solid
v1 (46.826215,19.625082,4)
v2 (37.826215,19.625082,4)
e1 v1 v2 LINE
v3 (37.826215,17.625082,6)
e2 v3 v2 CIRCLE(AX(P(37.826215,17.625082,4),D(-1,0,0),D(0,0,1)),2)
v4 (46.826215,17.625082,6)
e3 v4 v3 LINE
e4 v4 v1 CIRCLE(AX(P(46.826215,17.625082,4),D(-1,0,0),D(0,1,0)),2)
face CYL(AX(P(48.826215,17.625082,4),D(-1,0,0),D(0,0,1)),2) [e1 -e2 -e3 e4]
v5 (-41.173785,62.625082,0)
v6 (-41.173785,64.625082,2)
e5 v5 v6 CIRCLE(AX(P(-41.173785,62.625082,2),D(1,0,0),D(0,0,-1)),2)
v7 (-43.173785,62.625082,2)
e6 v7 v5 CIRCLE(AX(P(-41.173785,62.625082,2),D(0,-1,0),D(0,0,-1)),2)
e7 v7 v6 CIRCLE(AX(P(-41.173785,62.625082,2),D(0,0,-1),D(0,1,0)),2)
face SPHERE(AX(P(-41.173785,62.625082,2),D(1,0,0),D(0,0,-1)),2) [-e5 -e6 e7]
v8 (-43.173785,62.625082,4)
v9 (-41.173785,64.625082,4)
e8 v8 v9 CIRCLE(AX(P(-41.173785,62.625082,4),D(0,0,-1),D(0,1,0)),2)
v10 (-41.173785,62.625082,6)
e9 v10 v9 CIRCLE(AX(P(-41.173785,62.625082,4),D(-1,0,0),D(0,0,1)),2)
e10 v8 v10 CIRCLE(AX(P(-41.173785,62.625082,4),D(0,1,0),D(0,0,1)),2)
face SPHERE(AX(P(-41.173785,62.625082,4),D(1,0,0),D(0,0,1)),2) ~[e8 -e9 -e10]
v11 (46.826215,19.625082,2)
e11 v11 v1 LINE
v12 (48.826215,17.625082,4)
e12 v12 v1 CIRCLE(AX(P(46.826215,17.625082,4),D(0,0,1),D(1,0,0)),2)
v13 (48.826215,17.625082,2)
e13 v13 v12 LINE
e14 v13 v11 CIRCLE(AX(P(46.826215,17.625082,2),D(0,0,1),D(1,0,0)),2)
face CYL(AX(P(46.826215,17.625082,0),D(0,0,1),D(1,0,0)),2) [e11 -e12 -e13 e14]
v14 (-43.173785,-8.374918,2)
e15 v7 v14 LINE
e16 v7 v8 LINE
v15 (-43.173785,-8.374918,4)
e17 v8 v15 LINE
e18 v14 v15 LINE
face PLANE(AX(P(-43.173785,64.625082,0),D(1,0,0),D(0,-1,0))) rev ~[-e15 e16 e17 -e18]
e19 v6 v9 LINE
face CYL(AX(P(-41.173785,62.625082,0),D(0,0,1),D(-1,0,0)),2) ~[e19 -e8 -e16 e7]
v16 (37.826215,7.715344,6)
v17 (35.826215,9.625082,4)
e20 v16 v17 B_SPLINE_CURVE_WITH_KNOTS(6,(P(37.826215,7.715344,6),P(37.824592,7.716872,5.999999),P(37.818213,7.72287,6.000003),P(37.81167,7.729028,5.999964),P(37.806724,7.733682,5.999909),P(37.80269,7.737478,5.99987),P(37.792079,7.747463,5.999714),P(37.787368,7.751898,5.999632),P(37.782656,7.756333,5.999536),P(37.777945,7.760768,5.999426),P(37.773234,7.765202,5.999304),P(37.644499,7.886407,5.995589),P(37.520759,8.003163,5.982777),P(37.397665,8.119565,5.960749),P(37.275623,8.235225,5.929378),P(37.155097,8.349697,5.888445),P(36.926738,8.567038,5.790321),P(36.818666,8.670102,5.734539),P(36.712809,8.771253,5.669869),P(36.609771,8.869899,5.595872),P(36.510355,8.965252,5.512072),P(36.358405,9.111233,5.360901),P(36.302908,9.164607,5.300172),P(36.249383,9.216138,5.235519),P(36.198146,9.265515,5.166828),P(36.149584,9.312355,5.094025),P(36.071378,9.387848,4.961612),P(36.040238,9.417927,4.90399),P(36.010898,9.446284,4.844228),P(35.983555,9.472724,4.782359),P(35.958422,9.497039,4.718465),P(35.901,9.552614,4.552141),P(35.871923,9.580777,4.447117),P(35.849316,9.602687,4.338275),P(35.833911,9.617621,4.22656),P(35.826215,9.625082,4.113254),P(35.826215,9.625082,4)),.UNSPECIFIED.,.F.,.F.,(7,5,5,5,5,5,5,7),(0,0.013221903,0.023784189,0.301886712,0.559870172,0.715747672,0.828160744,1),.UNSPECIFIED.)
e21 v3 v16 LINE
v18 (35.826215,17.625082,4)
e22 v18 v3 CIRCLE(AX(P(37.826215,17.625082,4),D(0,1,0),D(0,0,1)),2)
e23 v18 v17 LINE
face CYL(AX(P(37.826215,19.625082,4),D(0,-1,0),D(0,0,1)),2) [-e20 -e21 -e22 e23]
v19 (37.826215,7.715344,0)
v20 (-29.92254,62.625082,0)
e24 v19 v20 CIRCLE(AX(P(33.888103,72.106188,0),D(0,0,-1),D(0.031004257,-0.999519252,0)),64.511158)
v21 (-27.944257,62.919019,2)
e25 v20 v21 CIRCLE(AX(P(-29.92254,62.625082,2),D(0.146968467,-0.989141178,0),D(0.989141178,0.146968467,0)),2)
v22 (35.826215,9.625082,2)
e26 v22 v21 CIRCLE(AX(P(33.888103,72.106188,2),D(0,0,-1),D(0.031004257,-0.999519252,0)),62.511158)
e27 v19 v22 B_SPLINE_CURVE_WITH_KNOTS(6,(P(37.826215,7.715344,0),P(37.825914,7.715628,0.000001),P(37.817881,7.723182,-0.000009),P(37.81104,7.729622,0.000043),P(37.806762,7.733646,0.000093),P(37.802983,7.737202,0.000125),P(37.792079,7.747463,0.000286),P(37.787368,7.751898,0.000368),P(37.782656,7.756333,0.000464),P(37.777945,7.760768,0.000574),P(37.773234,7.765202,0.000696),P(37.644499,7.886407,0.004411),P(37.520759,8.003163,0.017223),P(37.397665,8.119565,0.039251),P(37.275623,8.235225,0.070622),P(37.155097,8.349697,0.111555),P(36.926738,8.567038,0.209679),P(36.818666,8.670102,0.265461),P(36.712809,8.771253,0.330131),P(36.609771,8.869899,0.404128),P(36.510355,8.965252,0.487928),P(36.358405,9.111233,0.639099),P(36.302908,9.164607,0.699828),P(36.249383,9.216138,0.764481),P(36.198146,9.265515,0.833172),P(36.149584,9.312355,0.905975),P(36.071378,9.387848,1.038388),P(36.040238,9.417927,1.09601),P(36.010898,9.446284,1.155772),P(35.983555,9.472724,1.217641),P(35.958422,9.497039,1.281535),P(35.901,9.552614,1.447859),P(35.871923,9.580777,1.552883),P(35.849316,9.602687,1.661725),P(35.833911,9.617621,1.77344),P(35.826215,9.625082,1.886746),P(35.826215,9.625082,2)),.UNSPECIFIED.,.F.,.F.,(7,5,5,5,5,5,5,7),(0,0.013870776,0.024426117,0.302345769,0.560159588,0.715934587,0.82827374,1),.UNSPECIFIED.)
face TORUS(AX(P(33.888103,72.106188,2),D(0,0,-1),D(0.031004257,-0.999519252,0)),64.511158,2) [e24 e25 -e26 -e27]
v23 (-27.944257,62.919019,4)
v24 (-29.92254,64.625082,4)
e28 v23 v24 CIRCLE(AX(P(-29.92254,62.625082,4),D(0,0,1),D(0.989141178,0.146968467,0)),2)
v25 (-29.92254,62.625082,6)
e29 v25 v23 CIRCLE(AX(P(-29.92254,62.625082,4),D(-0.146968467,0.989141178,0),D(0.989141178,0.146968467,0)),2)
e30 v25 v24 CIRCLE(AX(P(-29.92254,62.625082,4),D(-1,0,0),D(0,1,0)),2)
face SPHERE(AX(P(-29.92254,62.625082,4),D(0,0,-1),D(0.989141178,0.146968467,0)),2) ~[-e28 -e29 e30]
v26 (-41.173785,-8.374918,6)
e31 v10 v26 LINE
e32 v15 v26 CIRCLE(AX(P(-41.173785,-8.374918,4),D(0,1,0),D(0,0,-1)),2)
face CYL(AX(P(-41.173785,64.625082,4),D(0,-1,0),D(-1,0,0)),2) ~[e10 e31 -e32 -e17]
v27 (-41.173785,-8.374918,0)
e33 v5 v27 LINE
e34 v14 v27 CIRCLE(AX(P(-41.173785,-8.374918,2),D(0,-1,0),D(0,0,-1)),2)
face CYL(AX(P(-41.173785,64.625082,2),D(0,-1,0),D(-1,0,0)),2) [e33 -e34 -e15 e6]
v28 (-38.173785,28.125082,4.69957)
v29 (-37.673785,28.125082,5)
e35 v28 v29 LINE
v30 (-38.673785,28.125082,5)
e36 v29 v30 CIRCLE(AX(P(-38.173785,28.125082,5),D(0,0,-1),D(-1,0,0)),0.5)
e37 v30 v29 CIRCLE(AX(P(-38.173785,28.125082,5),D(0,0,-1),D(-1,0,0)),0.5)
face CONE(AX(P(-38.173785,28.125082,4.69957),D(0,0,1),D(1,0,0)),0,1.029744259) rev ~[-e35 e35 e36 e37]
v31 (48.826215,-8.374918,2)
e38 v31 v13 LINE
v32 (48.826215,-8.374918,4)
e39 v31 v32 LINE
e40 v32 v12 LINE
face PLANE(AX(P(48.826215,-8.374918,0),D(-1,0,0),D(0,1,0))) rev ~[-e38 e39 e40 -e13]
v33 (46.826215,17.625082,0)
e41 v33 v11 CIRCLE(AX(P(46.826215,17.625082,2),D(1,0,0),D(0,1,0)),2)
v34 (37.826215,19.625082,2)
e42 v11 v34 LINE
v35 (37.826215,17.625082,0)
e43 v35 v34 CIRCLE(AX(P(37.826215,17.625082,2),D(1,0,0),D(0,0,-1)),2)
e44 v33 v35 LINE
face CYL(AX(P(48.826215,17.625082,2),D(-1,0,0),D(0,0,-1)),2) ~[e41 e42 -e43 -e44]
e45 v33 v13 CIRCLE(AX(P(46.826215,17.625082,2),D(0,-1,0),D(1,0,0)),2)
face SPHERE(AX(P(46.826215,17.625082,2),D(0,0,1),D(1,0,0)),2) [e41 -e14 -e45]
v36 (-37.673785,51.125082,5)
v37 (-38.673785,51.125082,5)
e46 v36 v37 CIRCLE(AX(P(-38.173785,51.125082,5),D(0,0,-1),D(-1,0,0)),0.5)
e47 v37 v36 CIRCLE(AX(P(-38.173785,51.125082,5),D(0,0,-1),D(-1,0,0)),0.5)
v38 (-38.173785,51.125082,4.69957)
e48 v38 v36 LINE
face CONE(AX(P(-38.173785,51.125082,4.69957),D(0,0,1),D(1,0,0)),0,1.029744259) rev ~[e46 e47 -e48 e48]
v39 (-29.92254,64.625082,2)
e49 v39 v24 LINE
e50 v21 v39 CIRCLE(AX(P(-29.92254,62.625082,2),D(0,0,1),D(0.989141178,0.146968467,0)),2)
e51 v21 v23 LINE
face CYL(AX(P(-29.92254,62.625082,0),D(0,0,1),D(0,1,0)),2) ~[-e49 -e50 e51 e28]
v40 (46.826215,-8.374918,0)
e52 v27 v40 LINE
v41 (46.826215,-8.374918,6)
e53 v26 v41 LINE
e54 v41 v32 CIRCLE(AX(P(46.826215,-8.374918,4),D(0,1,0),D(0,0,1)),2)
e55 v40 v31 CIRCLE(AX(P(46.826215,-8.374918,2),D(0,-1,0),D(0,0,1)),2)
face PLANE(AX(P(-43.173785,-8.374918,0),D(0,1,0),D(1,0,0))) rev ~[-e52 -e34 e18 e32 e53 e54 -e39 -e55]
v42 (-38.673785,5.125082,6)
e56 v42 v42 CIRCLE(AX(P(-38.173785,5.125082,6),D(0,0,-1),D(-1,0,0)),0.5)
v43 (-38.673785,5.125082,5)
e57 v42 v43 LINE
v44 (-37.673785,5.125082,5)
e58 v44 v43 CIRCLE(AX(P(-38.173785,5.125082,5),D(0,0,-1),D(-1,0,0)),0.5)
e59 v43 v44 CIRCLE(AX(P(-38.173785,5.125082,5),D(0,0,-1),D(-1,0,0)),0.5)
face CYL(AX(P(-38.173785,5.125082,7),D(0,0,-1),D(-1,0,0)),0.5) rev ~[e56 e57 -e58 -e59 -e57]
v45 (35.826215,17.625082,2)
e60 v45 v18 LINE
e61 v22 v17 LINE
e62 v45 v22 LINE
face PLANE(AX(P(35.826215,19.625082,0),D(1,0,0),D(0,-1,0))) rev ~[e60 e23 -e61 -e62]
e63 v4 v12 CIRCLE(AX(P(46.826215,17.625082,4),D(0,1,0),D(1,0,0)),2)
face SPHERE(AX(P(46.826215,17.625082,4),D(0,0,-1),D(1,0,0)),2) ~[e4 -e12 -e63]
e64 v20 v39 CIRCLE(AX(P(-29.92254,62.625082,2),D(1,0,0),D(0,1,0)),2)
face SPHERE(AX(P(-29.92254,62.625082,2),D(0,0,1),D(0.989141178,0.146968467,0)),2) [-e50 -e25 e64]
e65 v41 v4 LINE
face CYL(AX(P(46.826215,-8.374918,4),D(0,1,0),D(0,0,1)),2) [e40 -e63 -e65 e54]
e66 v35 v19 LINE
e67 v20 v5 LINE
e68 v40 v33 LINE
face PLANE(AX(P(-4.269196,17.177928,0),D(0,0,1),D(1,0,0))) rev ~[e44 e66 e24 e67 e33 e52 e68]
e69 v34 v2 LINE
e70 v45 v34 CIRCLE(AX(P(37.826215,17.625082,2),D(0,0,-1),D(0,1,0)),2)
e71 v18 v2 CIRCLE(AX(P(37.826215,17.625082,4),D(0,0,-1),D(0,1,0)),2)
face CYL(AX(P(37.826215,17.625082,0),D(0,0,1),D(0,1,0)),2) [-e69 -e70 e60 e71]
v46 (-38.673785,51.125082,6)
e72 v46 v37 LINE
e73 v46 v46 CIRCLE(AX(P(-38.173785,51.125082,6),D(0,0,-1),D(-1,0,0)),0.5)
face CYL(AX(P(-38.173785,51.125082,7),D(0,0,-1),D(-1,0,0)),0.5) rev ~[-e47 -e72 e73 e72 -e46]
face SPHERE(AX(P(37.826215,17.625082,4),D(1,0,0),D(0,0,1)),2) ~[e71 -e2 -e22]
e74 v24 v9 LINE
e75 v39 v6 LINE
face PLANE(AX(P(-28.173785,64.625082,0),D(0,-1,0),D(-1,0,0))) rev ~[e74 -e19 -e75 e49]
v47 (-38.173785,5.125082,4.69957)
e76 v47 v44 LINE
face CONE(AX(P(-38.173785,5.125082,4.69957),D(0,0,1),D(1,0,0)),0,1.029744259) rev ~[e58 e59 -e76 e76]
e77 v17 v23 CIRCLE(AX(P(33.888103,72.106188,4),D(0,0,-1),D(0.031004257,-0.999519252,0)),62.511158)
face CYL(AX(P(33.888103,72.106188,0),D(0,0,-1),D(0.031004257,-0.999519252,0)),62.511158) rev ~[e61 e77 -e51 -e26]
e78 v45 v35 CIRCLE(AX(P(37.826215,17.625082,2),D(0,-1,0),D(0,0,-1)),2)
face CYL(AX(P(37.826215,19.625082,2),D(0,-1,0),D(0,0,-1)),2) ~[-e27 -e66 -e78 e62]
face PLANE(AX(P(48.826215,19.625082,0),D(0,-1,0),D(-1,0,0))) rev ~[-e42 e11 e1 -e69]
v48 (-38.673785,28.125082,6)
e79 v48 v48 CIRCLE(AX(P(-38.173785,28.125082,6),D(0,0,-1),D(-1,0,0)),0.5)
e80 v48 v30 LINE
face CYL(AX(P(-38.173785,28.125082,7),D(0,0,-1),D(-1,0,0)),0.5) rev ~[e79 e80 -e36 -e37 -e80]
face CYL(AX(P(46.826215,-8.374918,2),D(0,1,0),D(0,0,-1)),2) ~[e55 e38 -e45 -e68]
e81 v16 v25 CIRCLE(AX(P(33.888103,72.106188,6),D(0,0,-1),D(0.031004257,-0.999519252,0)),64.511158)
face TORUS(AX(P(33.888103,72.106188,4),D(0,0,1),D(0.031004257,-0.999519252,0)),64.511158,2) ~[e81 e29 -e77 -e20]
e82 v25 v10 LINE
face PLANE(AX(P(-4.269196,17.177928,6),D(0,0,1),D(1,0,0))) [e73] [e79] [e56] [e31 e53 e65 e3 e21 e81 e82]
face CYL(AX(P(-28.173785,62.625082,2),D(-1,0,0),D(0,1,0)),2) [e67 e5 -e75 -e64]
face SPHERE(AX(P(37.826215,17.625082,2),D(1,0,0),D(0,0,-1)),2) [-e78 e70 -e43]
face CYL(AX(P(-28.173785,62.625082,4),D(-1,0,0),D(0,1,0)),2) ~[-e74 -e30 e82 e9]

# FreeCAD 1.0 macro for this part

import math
import FreeCAD as App
import Part
import Sketcher
from FreeCAD import Vector
Q = App.Units.Quantity


def edges_at(feature, points):
    """Names of the edges that pass closest to the given points."""
    edges = feature.Shape.Edges
    near = lambda p: min(range(len(edges)), key=lambda i: edges[i].distToShape(Part.Vertex(*p))[0])
    return sorted({f"Edge{near(p) + 1}" for p in points})

doc = App.newDocument("Part")
params = doc.addObject("Spreadsheet::Sheet", "Params")
for row, (alias, value) in enumerate([
    ("sketch1_width", "92 mm"),
    ("sketch1_width2", "13 mm"),
    ("sketch1_width3", "15 mm"),
    ("sketch1_height", "73 mm"),
    ("sketch1_height2", "28 mm"),
    ("pad1_length", "6 mm"),
    ("sketch2_diameter", "1 mm"),
    ("hole_diameter", "1 mm"),
    ("hole_depth", "1 mm"),
    ("fillet_radius", "2 mm"),
], start=1):
    params.set(f"A{row}", alias)
    params.set(f"B{row}", "=" + value)
    params.setAlias(f"B{row}", alias)

body = doc.addObject("PartDesign::Body", "Body")

# Sketch on XY plane
sketch1 = doc.addObject("Sketcher::SketchObject", "Sketch")
body.addObject(sketch1)
sketch1.AttachmentSupport = (doc.XY_Plane, [""])
sketch1.MapMode = "FlatFace"
sketch1.addGeometry([
    Part.LineSegment(Vector(-43.173785, 64.625082, 0), Vector(-43.173785, -8.374918, 0)),  # 0
    Part.LineSegment(Vector(-43.173785, -8.374918, 0), Vector(48.826215, -8.374918, 0)),  # 1
    Part.LineSegment(Vector(48.826215, -8.374918, 0), Vector(48.826215, 19.625082, 0)),  # 2
    Part.LineSegment(Vector(48.826215, 19.625082, 0), Vector(35.826215, 19.625082, 0)),  # 3
    Part.LineSegment(Vector(35.826215, 19.625082, 0), Vector(35.826215, 9.625082, 0)),  # 4
    Part.ArcOfCircle(Part.Circle(Vector(33.888103, 72.106188, 0), Vector(0, 0, 1), 62.511158), math.radians(-173.126577), math.radians(-88.223302)),  # 5
    Part.LineSegment(Vector(-28.173785, 64.625082, 0), Vector(-43.173785, 64.625082, 0)),  # 6
], False)
sketch1.addConstraint([
    Sketcher.Constraint("Coincident", 0, 2, 1, 1),
    Sketcher.Constraint("Coincident", 1, 2, 2, 1),
    Sketcher.Constraint("Coincident", 2, 2, 3, 1),
    Sketcher.Constraint("Coincident", 3, 2, 4, 1),
    Sketcher.Constraint("Coincident", 4, 2, 5, 2),
    Sketcher.Constraint("Coincident", 5, 1, 6, 1),
    Sketcher.Constraint("Coincident", 6, 2, 0, 1),
    Sketcher.Constraint("Vertical", 0),
    Sketcher.Constraint("Horizontal", 1),
    Sketcher.Constraint("Vertical", 2),
    Sketcher.Constraint("Horizontal", 3),
    Sketcher.Constraint("Vertical", 4),
    Sketcher.Constraint("Horizontal", 6),
    Sketcher.Constraint("DistanceX", 1, 1, 1, 2, Q("92 mm")),
    Sketcher.Constraint("DistanceX", 3, 2, 3, 1, Q("13 mm")),
    Sketcher.Constraint("DistanceX", 6, 2, 6, 1, Q("15 mm")),
    Sketcher.Constraint("DistanceY", 0, 2, 0, 1, Q("73 mm")),
    Sketcher.Constraint("DistanceY", 2, 1, 2, 2, Q("28 mm")),
    Sketcher.Constraint("DistanceY", 4, 2, 4, 1, Q("10 mm")),
    Sketcher.Constraint("Radius", 5, Q("62.511158 mm")),
    Sketcher.Constraint("DistanceY", 0, 2, -1, 1, Q("8.374918 mm")),
    Sketcher.Constraint("DistanceX", -1, 1, 5, 3, Q("33.888103 mm")),
])
sketch1.setExpression("Constraints[13]", "Params.sketch1_width")
sketch1.setExpression("Constraints[14]", "Params.sketch1_width2")
sketch1.setExpression("Constraints[15]", "Params.sketch1_width3")
sketch1.setExpression("Constraints[16]", "Params.sketch1_height")
sketch1.setExpression("Constraints[17]", "Params.sketch1_height2")
pad1 = doc.addObject("PartDesign::Pad", "Pad")
body.addObject(pad1)
pad1.Profile = sketch1
pad1.setExpression("Length", "Params.pad1_length")

# Sketch on XY plane
sketch2 = doc.addObject("Sketcher::SketchObject", "Sketch001")
body.addObject(sketch2)
sketch2.AttachmentSupport = (doc.XY_Plane, [""])
sketch2.MapMode = "FlatFace"
sketch2.AttachmentOffset = App.Placement(Vector(0, 0, 6), App.Rotation())
sketch2.addGeometry([
    Part.Circle(Vector(-38.173785, 51.125082, 0), Vector(0, 0, 1), 0.5),
    Part.Circle(Vector(-38.173785, 28.125082, 0), Vector(0, 0, 1), 0.5),
    Part.Circle(Vector(-38.173785, 5.125082, 0), Vector(0, 0, 1), 0.5),
], False)
sketch2.addConstraint([
    Sketcher.Constraint("Equal", 0, 1),
    Sketcher.Constraint("Equal", 1, 2),
    Sketcher.Constraint("Vertical", 0, 3, 1, 3),
    Sketcher.Constraint("Vertical", 1, 3, 2, 3),
    Sketcher.Constraint("Diameter", 0, Q("1 mm")),
    Sketcher.Constraint("DistanceY", 1, 3, 0, 3, Q("23 mm")),
    Sketcher.Constraint("DistanceY", 2, 3, 1, 3, Q("23 mm")),
    Sketcher.Constraint("DistanceY", -1, 1, 0, 3, Q("51.125082 mm")),
    Sketcher.Constraint("DistanceX", 0, 3, -1, 1, Q("38.173785 mm")),
])
sketch2.setExpression("Constraints[4]", "Params.sketch2_diameter")
doc.recompute()
hole = doc.addObject("PartDesign::Hole", "Hole")
body.addObject(hole)
hole.Profile = sketch2
hole.ThreadType = "None"
hole.setExpression("Diameter", "Params.hole_diameter")
hole.DepthType = "Dimension"
hole.setExpression("Depth", "Params.hole_depth")
hole.DrillPoint = "Angled"
hole.DrillPointAngle = 118
doc.recompute()

fillet = doc.addObject("PartDesign::Fillet", "Fillet")
body.addObject(fillet)
fillet.Base = (hole, edges_at(hole, [
    (48.826, 19.625, 3),
    (48.826, 5.625, 0),
    (48.826, 5.625, 6),
    (42.326, 19.625, 6),
    (42.326, 19.625, 0),
    (35.826, 14.625, 6),
    (-6.855, 24.697, 6),
    (35.826, 14.625, 0),
    (-6.855, 24.697, 0),
    (-35.674, 64.625, 0),
    (-35.674, 64.625, 6),
    (-43.174, 28.125, 0),
    (-43.174, 28.125, 6),
    (35.826, 19.625, 3),
    (-28.174, 64.625, 3),
    (-43.174, 64.625, 3),
]))
fillet.setExpression("Radius", "Params.fillet_radius")

doc.recompute()
